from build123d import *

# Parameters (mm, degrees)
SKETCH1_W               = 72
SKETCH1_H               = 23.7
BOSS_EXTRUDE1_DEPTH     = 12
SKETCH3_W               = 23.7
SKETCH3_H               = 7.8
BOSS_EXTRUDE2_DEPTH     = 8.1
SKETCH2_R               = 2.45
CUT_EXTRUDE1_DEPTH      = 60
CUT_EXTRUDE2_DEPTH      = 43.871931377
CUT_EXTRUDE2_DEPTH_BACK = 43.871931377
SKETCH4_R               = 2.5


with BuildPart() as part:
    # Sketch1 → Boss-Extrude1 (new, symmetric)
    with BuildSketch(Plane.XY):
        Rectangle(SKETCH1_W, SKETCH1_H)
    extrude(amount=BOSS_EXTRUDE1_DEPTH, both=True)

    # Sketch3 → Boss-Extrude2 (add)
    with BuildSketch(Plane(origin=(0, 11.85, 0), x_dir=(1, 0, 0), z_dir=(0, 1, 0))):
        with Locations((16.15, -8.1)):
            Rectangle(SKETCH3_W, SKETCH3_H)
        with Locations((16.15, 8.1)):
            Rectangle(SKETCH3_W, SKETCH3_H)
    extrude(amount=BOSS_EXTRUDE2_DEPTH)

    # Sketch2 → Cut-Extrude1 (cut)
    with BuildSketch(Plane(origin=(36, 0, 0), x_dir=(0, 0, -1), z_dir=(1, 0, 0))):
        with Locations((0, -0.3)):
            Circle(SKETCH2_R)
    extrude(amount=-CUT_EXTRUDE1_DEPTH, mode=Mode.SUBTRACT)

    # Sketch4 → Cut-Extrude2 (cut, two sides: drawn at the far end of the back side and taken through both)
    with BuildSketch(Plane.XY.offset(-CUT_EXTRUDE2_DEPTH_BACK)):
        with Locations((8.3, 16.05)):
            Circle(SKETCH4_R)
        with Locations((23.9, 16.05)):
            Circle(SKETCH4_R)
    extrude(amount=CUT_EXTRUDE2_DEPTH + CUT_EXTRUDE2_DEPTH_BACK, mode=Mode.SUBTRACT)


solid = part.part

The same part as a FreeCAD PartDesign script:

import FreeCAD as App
import Part
import Sketcher
from FreeCAD import Vector

doc = App.newDocument("Part")
params = doc.addObject("Spreadsheet::Sheet", "Params")
for row, (alias, value) in enumerate([
    ("sketch1_width", "72 mm"),
    ("sketch1_height", "23.7 mm"),
    ("pad1_length", "24 mm"),
    ("sketch2_width", "23.7 mm"),
    ("sketch2_height", "7.8 mm"),
    ("pad2_length", "8.1 mm"),
    ("sketch3_diameter", "4.9 mm"),
    ("pocket1_length", "60 mm"),
    ("sketch4_diameter", "5 mm"),
], start=1):
    params.set(f"A{row}", alias)
    params.set(f"B{row}", "=" + value)
    params.setAlias(f"B{row}", alias)

body = doc.addObject("PartDesign::Body", "Body")

sketch1 = body.newObject("Sketcher::SketchObject", "Sketch")
sketch1.AttachmentSupport = (doc.getObject("XY_Plane"), [""])
sketch1.MapMode = "FlatFace"
sketch1.addGeometry(Part.LineSegment(Vector(-36, 12, 0), Vector(-36, -12, 0)), False)
sketch1.addGeometry(Part.LineSegment(Vector(-36, -12, 0), Vector(36, -12, 0)), False)
sketch1.addGeometry(Part.LineSegment(Vector(36, -12, 0), Vector(36, 12, 0)), False)
sketch1.addGeometry(Part.LineSegment(Vector(36, 12, 0), Vector(-36, 12, 0)), False)
sketch1.addConstraint(Sketcher.Constraint("Coincident", 0, 2, 1, 1))
sketch1.addConstraint(Sketcher.Constraint("Coincident", 1, 2, 2, 1))
sketch1.addConstraint(Sketcher.Constraint("Coincident", 2, 2, 3, 1))
sketch1.addConstraint(Sketcher.Constraint("Coincident", 3, 2, 0, 1))
sketch1.addConstraint(Sketcher.Constraint("Vertical", 0))
sketch1.addConstraint(Sketcher.Constraint("Horizontal", 1))
sketch1.addConstraint(Sketcher.Constraint("Vertical", 2))
sketch1.addConstraint(Sketcher.Constraint("Horizontal", 3))
sketch1.addConstraint(Sketcher.Constraint("Symmetric", 0, 2, 2, 2, -1, 1))
sketch1.addConstraint(Sketcher.Constraint("DistanceX", 1, 1, 1, 2, 72.0))
sketch1.addConstraint(Sketcher.Constraint("DistanceY", 0, 2, 0, 1, 23.7))
sketch1.setExpression("Constraints[9]", "Params.sketch1_width")
sketch1.setExpression("Constraints[10]", "Params.sketch1_height")
pad1 = body.newObject("PartDesign::Pad", "Pad")
pad1.Profile = sketch1
pad1.setExpression("Length", "Params.pad1_length")
pad1.Midplane = True

sketch2 = body.newObject("Sketcher::SketchObject", "Sketch001")
sketch2.AttachmentSupport = (doc.getObject("XZ_Plane"), [""])
sketch2.MapMode = "FlatFace"
sketch2.AttachmentOffset = App.Placement(Vector(0, 0, -11.85), App.Rotation())
sketch2.addGeometry(Part.LineSegment(Vector(4, 4, 0), Vector(4, 12, 0)), False)
sketch2.addGeometry(Part.LineSegment(Vector(4, 12, 0), Vector(28, 12, 0)), False)
sketch2.addGeometry(Part.LineSegment(Vector(28, 12, 0), Vector(28, 4, 0)), False)
sketch2.addGeometry(Part.LineSegment(Vector(28, 4, 0), Vector(4, 4, 0)), False)
sketch2.addGeometry(Part.LineSegment(Vector(4, -12, 0), Vector(4, -4, 0)), False)
sketch2.addGeometry(Part.LineSegment(Vector(4, -4, 0), Vector(28, -4, 0)), False)
sketch2.addGeometry(Part.LineSegment(Vector(28, -4, 0), Vector(28, -12, 0)), False)
sketch2.addGeometry(Part.LineSegment(Vector(28, -12, 0), Vector(4, -12, 0)), False)
sketch2.addConstraint(Sketcher.Constraint("Coincident", 0, 2, 1, 1))
sketch2.addConstraint(Sketcher.Constraint("Coincident", 1, 2, 2, 1))
sketch2.addConstraint(Sketcher.Constraint("Coincident", 2, 2, 3, 1))
sketch2.addConstraint(Sketcher.Constraint("Coincident", 3, 2, 0, 1))
sketch2.addConstraint(Sketcher.Constraint("Coincident", 4, 2, 5, 1))
sketch2.addConstraint(Sketcher.Constraint("Coincident", 5, 2, 6, 1))
sketch2.addConstraint(Sketcher.Constraint("Coincident", 6, 2, 7, 1))
sketch2.addConstraint(Sketcher.Constraint("Coincident", 7, 2, 4, 1))
sketch2.addConstraint(Sketcher.Constraint("Vertical", 0))
sketch2.addConstraint(Sketcher.Constraint("Horizontal", 1))
sketch2.addConstraint(Sketcher.Constraint("Vertical", 2))
sketch2.addConstraint(Sketcher.Constraint("Horizontal", 3))
sketch2.addConstraint(Sketcher.Constraint("Vertical", 4))
sketch2.addConstraint(Sketcher.Constraint("Horizontal", 5))
sketch2.addConstraint(Sketcher.Constraint("Vertical", 6))
sketch2.addConstraint(Sketcher.Constraint("Horizontal", 7))
sketch2.addConstraint(Sketcher.Constraint("Symmetric", 3, 2, 4, 2, -1))
sketch2.addConstraint(Sketcher.Constraint("Symmetric", 1, 2, 6, 2, -1))
sketch2.addConstraint(Sketcher.Constraint("DistanceX", 1, 1, 1, 2, 23.7))
sketch2.addConstraint(Sketcher.Constraint("DistanceY", 0, 1, 0, 2, 7.8))
sketch2.addConstraint(Sketcher.Constraint("DistanceY", -1, 1, 0, 2, 12.0))
sketch2.addConstraint(Sketcher.Constraint("DistanceX", -1, 1, 1, 2, 28.0))
sketch2.setExpression("Constraints[18]", "Params.sketch2_width")
sketch2.setExpression("Constraints[19]", "Params.sketch2_height")
pad2 = body.newObject("PartDesign::Pad", "Pad001")
pad2.Profile = sketch2
pad2.setExpression("Length", "Params.pad2_length")
pad2.Reversed = True

sketch3 = body.newObject("Sketcher::SketchObject", "Sketch002")
sketch3.AttachmentSupport = (doc.getObject("YZ_Plane"), [""])
sketch3.MapMode = "FlatFace"
sketch3.AttachmentOffset = App.Placement(Vector(0, 0, 36), App.Rotation())
sketch3.addGeometry(Part.Circle(Vector(-0.3, 0, 0), Vector(0, 0, 1), 2.5), False)
sketch3.addConstraint(Sketcher.Constraint("PointOnObject", 0, 3, -1))
sketch3.addConstraint(Sketcher.Constraint("Diameter", 0, 4.9))
sketch3.addConstraint(Sketcher.Constraint("DistanceX", 0, 3, -1, 1, 0.3))
sketch3.setExpression("Constraints[1]", "Params.sketch3_diameter")
pocket1 = body.newObject("PartDesign::Pocket", "Pocket")
pocket1.Profile = sketch3
pocket1.setExpression("Length", "Params.pocket1_length")

sketch4 = body.newObject("Sketcher::SketchObject", "Sketch003")
sketch4.AttachmentSupport = (doc.getObject("XY_Plane"), [""])
sketch4.MapMode = "FlatFace"
sketch4.addGeometry(Part.Circle(Vector(8.3, 16.1, 0), Vector(0, 0, 1), 2.5), False)
sketch4.addGeometry(Part.Circle(Vector(23.9, 16.1, 0), Vector(0, 0, 1), 2.5), False)
sketch4.addConstraint(Sketcher.Constraint("Equal", 0, 1))
sketch4.addConstraint(Sketcher.Constraint("Horizontal", 0, 3, 1, 3))
sketch4.addConstraint(Sketcher.Constraint("Diameter", 0, 5.0))
sketch4.addConstraint(Sketcher.Constraint("DistanceX", -1, 1, 0, 3, 8.3))
sketch4.addConstraint(Sketcher.Constraint("DistanceX", -1, 1, 1, 3, 23.9))
sketch4.addConstraint(Sketcher.Constraint("DistanceY", -1, 1, 0, 3, 16.05))
sketch4.setExpression("Constraints[2]", "Params.sketch4_diameter")
pocket2 = body.newObject("PartDesign::Pocket", "Pocket001")
pocket2.Profile = sketch4
pocket2.Type = "ThroughAll"
pocket2.Midplane = True

doc.recompute()
